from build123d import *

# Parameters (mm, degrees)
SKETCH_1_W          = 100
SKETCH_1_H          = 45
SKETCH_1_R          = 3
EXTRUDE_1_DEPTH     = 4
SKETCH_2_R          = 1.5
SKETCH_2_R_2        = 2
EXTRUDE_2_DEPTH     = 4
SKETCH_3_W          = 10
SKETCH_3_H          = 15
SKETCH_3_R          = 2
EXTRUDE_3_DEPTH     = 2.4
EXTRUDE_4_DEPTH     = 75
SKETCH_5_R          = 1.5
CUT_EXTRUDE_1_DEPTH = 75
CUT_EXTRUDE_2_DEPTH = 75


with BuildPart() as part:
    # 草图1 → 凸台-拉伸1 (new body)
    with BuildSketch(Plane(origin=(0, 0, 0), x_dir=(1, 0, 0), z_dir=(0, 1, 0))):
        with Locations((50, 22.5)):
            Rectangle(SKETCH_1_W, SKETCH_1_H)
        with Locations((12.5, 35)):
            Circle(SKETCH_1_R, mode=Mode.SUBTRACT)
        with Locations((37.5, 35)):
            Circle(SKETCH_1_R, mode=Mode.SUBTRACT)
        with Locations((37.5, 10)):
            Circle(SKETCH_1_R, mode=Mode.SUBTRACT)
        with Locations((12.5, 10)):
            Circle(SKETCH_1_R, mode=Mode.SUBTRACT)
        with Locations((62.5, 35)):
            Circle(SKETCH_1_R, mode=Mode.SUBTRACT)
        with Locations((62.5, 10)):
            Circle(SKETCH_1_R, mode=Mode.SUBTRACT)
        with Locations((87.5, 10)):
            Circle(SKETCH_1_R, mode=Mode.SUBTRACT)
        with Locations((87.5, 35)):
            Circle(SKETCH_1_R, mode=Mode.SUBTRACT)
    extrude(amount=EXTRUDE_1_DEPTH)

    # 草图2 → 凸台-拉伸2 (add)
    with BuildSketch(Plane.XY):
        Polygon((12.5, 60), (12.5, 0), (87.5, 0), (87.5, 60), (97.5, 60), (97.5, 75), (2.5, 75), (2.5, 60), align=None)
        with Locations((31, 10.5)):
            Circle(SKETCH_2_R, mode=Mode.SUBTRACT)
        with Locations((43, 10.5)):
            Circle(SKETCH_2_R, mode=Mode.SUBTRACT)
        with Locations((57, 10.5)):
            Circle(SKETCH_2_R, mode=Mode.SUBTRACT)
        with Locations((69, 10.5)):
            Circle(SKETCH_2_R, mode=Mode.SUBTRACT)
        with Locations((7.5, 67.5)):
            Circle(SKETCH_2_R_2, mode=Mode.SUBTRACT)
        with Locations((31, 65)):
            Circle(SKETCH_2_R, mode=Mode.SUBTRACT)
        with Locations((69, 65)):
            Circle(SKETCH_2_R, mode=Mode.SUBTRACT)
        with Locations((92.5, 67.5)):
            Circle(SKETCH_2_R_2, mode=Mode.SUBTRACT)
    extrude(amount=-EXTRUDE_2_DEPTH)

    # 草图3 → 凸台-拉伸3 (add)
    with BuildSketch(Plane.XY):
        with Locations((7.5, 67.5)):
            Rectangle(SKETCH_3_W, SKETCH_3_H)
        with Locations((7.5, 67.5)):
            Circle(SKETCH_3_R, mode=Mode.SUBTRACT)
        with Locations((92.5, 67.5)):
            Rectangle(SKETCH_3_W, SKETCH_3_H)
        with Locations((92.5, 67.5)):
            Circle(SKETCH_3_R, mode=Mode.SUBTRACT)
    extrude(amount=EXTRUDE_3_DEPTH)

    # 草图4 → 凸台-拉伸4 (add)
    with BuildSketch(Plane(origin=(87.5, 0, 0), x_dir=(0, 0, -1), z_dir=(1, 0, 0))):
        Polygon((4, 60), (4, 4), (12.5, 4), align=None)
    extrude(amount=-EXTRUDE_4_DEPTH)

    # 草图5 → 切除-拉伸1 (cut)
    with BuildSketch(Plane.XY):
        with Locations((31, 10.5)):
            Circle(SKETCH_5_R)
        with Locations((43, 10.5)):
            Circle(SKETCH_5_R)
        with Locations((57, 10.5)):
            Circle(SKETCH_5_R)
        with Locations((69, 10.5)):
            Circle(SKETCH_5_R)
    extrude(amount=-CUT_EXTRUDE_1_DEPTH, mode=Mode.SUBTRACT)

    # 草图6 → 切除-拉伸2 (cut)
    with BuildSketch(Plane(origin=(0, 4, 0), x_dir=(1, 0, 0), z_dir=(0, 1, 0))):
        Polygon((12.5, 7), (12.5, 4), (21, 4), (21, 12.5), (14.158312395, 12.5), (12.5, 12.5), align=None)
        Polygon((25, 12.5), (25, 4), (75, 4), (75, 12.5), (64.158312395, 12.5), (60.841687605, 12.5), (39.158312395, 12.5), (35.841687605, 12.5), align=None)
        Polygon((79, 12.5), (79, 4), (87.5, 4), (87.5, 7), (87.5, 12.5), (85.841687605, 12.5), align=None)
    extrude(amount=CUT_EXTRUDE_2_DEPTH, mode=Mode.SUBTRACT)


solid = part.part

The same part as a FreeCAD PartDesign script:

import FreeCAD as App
import Part
import Sketcher

doc = App.newDocument("Part")
body = doc.addObject("PartDesign::Body", "Body")

sketch1 = body.newObject("Sketcher::SketchObject", "Sketch")
sketch1.AttachmentSupport = (doc.getObject("XZ_Plane"), [""])
sketch1.MapMode = "FlatFace"
sketch1.addGeometry(Part.LineSegment(App.Vector(0, -45, 0), App.Vector(0, 0, 0)), False)
sketch1.addGeometry(Part.LineSegment(App.Vector(0, 0, 0), App.Vector(100, 0, 0)), False)
sketch1.addGeometry(Part.LineSegment(App.Vector(100, 0, 0), App.Vector(100, -45, 0)), False)
sketch1.addGeometry(Part.LineSegment(App.Vector(100, -45, 0), App.Vector(0, -45, 0)), False)
sketch1.addGeometry(Part.Circle(App.Vector(12.5, -10, 0), App.Vector(0, 0, 1), 3), False)
sketch1.addGeometry(Part.Circle(App.Vector(37.5, -10, 0), App.Vector(0, 0, 1), 3), False)
sketch1.addGeometry(Part.Circle(App.Vector(62.5, -10, 0), App.Vector(0, 0, 1), 3), False)
sketch1.addGeometry(Part.Circle(App.Vector(87.5, -10, 0), App.Vector(0, 0, 1), 3), False)
sketch1.addGeometry(Part.Circle(App.Vector(12.5, -35, 0), App.Vector(0, 0, 1), 3), False)
sketch1.addGeometry(Part.Circle(App.Vector(37.5, -35, 0), App.Vector(0, 0, 1), 3), False)
sketch1.addGeometry(Part.Circle(App.Vector(62.5, -35, 0), App.Vector(0, 0, 1), 3), False)
sketch1.addGeometry(Part.Circle(App.Vector(87.5, -35, 0), App.Vector(0, 0, 1), 3), False)
sketch1.addConstraint(Sketcher.Constraint("Coincident", 0, 2, 1, 1))
sketch1.addConstraint(Sketcher.Constraint("Coincident", 1, 2, 2, 1))
sketch1.addConstraint(Sketcher.Constraint("Coincident", 2, 2, 3, 1))
sketch1.addConstraint(Sketcher.Constraint("Coincident", 3, 2, 0, 1))
sketch1.addConstraint(Sketcher.Constraint("Vertical", 0))
sketch1.addConstraint(Sketcher.Constraint("Horizontal", 1))
sketch1.addConstraint(Sketcher.Constraint("Vertical", 2))
sketch1.addConstraint(Sketcher.Constraint("Horizontal", 3))
sketch1.addConstraint(Sketcher.Constraint("Coincident", 0, 2, -1, 1))
sketch1.addConstraint(Sketcher.Constraint("Equal", 4, 5))
sketch1.addConstraint(Sketcher.Constraint("Equal", 5, 6))
sketch1.addConstraint(Sketcher.Constraint("Equal", 6, 7))
sketch1.addConstraint(Sketcher.Constraint("Equal", 7, 8))
sketch1.addConstraint(Sketcher.Constraint("Equal", 8, 9))
sketch1.addConstraint(Sketcher.Constraint("Equal", 9, 10))
sketch1.addConstraint(Sketcher.Constraint("Equal", 10, 11))
sketch1.addConstraint(Sketcher.Constraint("Horizontal", 4, 3, 5, 3))
sketch1.addConstraint(Sketcher.Constraint("Horizontal", 5, 3, 6, 3))
sketch1.addConstraint(Sketcher.Constraint("Horizontal", 6, 3, 7, 3))
sketch1.addConstraint(Sketcher.Constraint("Horizontal", 8, 3, 9, 3))
sketch1.addConstraint(Sketcher.Constraint("Horizontal", 9, 3, 10, 3))
sketch1.addConstraint(Sketcher.Constraint("Horizontal", 10, 3, 11, 3))
sketch1.addConstraint(Sketcher.Constraint("Vertical", 4, 3, 8, 3))
sketch1.addConstraint(Sketcher.Constraint("Vertical", 5, 3, 9, 3))
sketch1.addConstraint(Sketcher.Constraint("Vertical", 6, 3, 10, 3))
sketch1.addConstraint(Sketcher.Constraint("Vertical", 7, 3, 11, 3))
sketch1.addConstraint(Sketcher.Constraint("Diameter", 4, 6.0))
sketch1.addConstraint(Sketcher.Constraint("DistanceX", 1, 1, 1, 2, 100.0))
sketch1.addConstraint(Sketcher.Constraint("DistanceY", 0, 1, 0, 2, 45.0))
sketch1.addConstraint(Sketcher.Constraint("DistanceY", 4, 3, -1, 1, 10.0))
sketch1.addConstraint(Sketcher.Constraint("DistanceY", 8, 3, -1, 1, 35.0))
sketch1.addConstraint(Sketcher.Constraint("DistanceX", 4, 3, 5, 3, 25.0))
sketch1.addConstraint(Sketcher.Constraint("DistanceX", 5, 3, 6, 3, 25.0))
sketch1.addConstraint(Sketcher.Constraint("DistanceX", 6, 3, 7, 3, 25.0))
sketch1.addConstraint(Sketcher.Constraint("DistanceX", -1, 1, 4, 3, 12.5))
pad1 = body.newObject("PartDesign::Pad", "Pad")
pad1.Profile = sketch1
pad1.Length = 4
pad1.Reversed = True

sketch2 = body.newObject("Sketcher::SketchObject", "Sketch001")
sketch2.AttachmentSupport = (doc.getObject("XY_Plane"), [""])
sketch2.MapMode = "FlatFace"
sketch2.addGeometry(Part.LineSegment(App.Vector(12.5, 60, 0), App.Vector(12.5, 0, 0)), False)
sketch2.addGeometry(Part.LineSegment(App.Vector(12.5, 0, 0), App.Vector(87.5, 0, 0)), False)
sketch2.addGeometry(Part.LineSegment(App.Vector(87.5, 0, 0), App.Vector(87.5, 60, 0)), False)
sketch2.addGeometry(Part.LineSegment(App.Vector(87.5, 60, 0), App.Vector(97.5, 60, 0)), False)
sketch2.addGeometry(Part.LineSegment(App.Vector(97.5, 60, 0), App.Vector(97.5, 75, 0)), False)
sketch2.addGeometry(Part.LineSegment(App.Vector(97.5, 75, 0), App.Vector(2.5, 75, 0)), False)
sketch2.addGeometry(Part.LineSegment(App.Vector(2.5, 75, 0), App.Vector(2.5, 60, 0)), False)
sketch2.addGeometry(Part.LineSegment(App.Vector(2.5, 60, 0), App.Vector(12.5, 60, 0)), False)
sketch2.addGeometry(Part.Circle(App.Vector(31, 10.5, 0), App.Vector(0, 0, 1), 1.5), False)
sketch2.addGeometry(Part.Circle(App.Vector(43, 10.5, 0), App.Vector(0, 0, 1), 1.5), False)
sketch2.addGeometry(Part.Circle(App.Vector(57, 10.5, 0), App.Vector(0, 0, 1), 1.5), False)
sketch2.addGeometry(Part.Circle(App.Vector(69, 10.5, 0), App.Vector(0, 0, 1), 1.5), False)
sketch2.addGeometry(Part.Circle(App.Vector(7.5, 67.5, 0), App.Vector(0, 0, 1), 2), False)
sketch2.addGeometry(Part.Circle(App.Vector(31, 65, 0), App.Vector(0, 0, 1), 1.5), False)
sketch2.addGeometry(Part.Circle(App.Vector(69, 65, 0), App.Vector(0, 0, 1), 1.5), False)
sketch2.addGeometry(Part.Circle(App.Vector(92.5, 67.5, 0), App.Vector(0, 0, 1), 2), False)
sketch2.addConstraint(Sketcher.Constraint("Coincident", 0, 2, 1, 1))
sketch2.addConstraint(Sketcher.Constraint("Coincident", 1, 2, 2, 1))
sketch2.addConstraint(Sketcher.Constraint("Coincident", 2, 2, 3, 1))
sketch2.addConstraint(Sketcher.Constraint("Coincident", 3, 2, 4, 1))
sketch2.addConstraint(Sketcher.Constraint("Coincident", 4, 2, 5, 1))
sketch2.addConstraint(Sketcher.Constraint("Coincident", 5, 2, 6, 1))
sketch2.addConstraint(Sketcher.Constraint("Coincident", 6, 2, 7, 1))
sketch2.addConstraint(Sketcher.Constraint("Coincident", 7, 2, 0, 1))
sketch2.addConstraint(Sketcher.Constraint("Vertical", 0))
sketch2.addConstraint(Sketcher.Constraint("Horizontal", 1))
sketch2.addConstraint(Sketcher.Constraint("Vertical", 2))
sketch2.addConstraint(Sketcher.Constraint("Horizontal", 3))
sketch2.addConstraint(Sketcher.Constraint("Vertical", 4))
sketch2.addConstraint(Sketcher.Constraint("Horizontal", 5))
sketch2.addConstraint(Sketcher.Constraint("Vertical", 6))
sketch2.addConstraint(Sketcher.Constraint("Horizontal", 7))
sketch2.addConstraint(Sketcher.Constraint("Equal", 8, 9))
sketch2.addConstraint(Sketcher.Constraint("Equal", 9, 10))
sketch2.addConstraint(Sketcher.Constraint("Equal", 10, 11))
sketch2.addConstraint(Sketcher.Constraint("Equal", 11, 13))
sketch2.addConstraint(Sketcher.Constraint("Equal", 13, 14))
sketch2.addConstraint(Sketcher.Constraint("Equal", 12, 15))
sketch2.addConstraint(Sketcher.Constraint("PointOnObject", 0, 2, -1))
sketch2.addConstraint(Sketcher.Constraint("Horizontal", 8, 3, 9, 3))
sketch2.addConstraint(Sketcher.Constraint("Horizontal", 9, 3, 10, 3))
sketch2.addConstraint(Sketcher.Constraint("Horizontal", 10, 3, 11, 3))
sketch2.addConstraint(Sketcher.Constraint("Horizontal", 13, 3, 14, 3))
sketch2.addConstraint(Sketcher.Constraint("Horizontal", 12, 3, 15, 3))
sketch2.addConstraint(Sketcher.Constraint("Horizontal", 3, 2, 6, 2))
sketch2.addConstraint(Sketcher.Constraint("Vertical", 8, 3, 13, 3))
sketch2.addConstraint(Sketcher.Constraint("Vertical", 11, 3, 14, 3))
sketch2.addConstraint(Sketcher.Constraint("Equal", 3, 7))
sketch2.addConstraint(Sketcher.Constraint("Diameter", 8, 3.0))
sketch2.addConstraint(Sketcher.Constraint("Diameter", 12, 4.0))
sketch2.addConstraint(Sketcher.Constraint("DistanceX", 1, 1, 1, 2, 75.0))
sketch2.addConstraint(Sketcher.Constraint("DistanceX", 3, 1, 3, 2, 10.0))
sketch2.addConstraint(Sketcher.Constraint("DistanceY", 0, 2, 0, 1, 60.0))
sketch2.addConstraint(Sketcher.Constraint("DistanceY", 4, 1, 4, 2, 15.0))
sketch2.addConstraint(Sketcher.Constraint("DistanceX", -1, 1, 8, 3, 31.0))
sketch2.addConstraint(Sketcher.Constraint("DistanceX", -1, 1, 9, 3, 43.0))
sketch2.addConstraint(Sketcher.Constraint("DistanceX", -1, 1, 10, 3, 57.0))
sketch2.addConstraint(Sketcher.Constraint("DistanceX", -1, 1, 11, 3, 69.0))
sketch2.addConstraint(Sketcher.Constraint("DistanceY", -1, 1, 13, 3, 65.0))
sketch2.addConstraint(Sketcher.Constraint("DistanceY", 8, 3, 12, 3, 57.0))
sketch2.addConstraint(Sketcher.Constraint("DistanceX", 2, 2, 15, 3, 5.0))
sketch2.addConstraint(Sketcher.Constraint("DistanceX", 5, 2, 12, 3, 5.0))
sketch2.addConstraint(Sketcher.Constraint("DistanceY", -1, 1, 8, 3, 10.5))
sketch2.addConstraint(Sketcher.Constraint("DistanceX", -1, 1, 12, 3, 7.5))
pad2 = body.newObject("PartDesign::Pad", "Pad001")
pad2.Profile = sketch2
pad2.Length = 4
pad2.Reversed = True

sketch3 = body.newObject("Sketcher::SketchObject", "Sketch002")
sketch3.AttachmentSupport = (doc.getObject("XY_Plane"), [""])
sketch3.MapMode = "FlatFace"
sketch3.addGeometry(Part.LineSegment(App.Vector(2.5, 75, 0), App.Vector(2.5, 60, 0)), False)
sketch3.addGeometry(Part.LineSegment(App.Vector(2.5, 60, 0), App.Vector(12.5, 60, 0)), False)
sketch3.addGeometry(Part.LineSegment(App.Vector(12.5, 60, 0), App.Vector(12.5, 75, 0)), False)
sketch3.addGeometry(Part.LineSegment(App.Vector(12.5, 75, 0), App.Vector(2.5, 75, 0)), False)
sketch3.addGeometry(Part.Circle(App.Vector(7.5, 67.5, 0), App.Vector(0, 0, 1), 2), False)
sketch3.addGeometry(Part.LineSegment(App.Vector(87.5, 75, 0), App.Vector(87.5, 60, 0)), False)
sketch3.addGeometry(Part.LineSegment(App.Vector(87.5, 60, 0), App.Vector(97.5, 60, 0)), False)
sketch3.addGeometry(Part.LineSegment(App.Vector(97.5, 60, 0), App.Vector(97.5, 75, 0)), False)
sketch3.addGeometry(Part.LineSegment(App.Vector(97.5, 75, 0), App.Vector(87.5, 75, 0)), False)
sketch3.addGeometry(Part.Circle(App.Vector(92.5, 67.5, 0), App.Vector(0, 0, 1), 2), False)
sketch3.addConstraint(Sketcher.Constraint("Coincident", 0, 2, 1, 1))
sketch3.addConstraint(Sketcher.Constraint("Coincident", 1, 2, 2, 1))
sketch3.addConstraint(Sketcher.Constraint("Coincident", 2, 2, 3, 1))
sketch3.addConstraint(Sketcher.Constraint("Coincident", 3, 2, 0, 1))
sketch3.addConstraint(Sketcher.Constraint("Coincident", 5, 2, 6, 1))
sketch3.addConstraint(Sketcher.Constraint("Coincident", 6, 2, 7, 1))
sketch3.addConstraint(Sketcher.Constraint("Coincident", 7, 2, 8, 1))
sketch3.addConstraint(Sketcher.Constraint("Coincident", 8, 2, 5, 1))
sketch3.addConstraint(Sketcher.Constraint("Vertical", 0))
sketch3.addConstraint(Sketcher.Constraint("Horizontal", 1))
sketch3.addConstraint(Sketcher.Constraint("Vertical", 2))
sketch3.addConstraint(Sketcher.Constraint("Horizontal", 3))
sketch3.addConstraint(Sketcher.Constraint("Vertical", 5))
sketch3.addConstraint(Sketcher.Constraint("Horizontal", 6))
sketch3.addConstraint(Sketcher.Constraint("Vertical", 7))
sketch3.addConstraint(Sketcher.Constraint("Horizontal", 8))
sketch3.addConstraint(Sketcher.Constraint("Equal", 4, 9))
sketch3.addConstraint(Sketcher.Constraint("Horizontal", 4, 3, 9, 3))
sketch3.addConstraint(Sketcher.Constraint("Horizontal", 1, 2, 5, 2))
sketch3.addConstraint(Sketcher.Constraint("Horizontal", 3, 2, 7, 2))
sketch3.addConstraint(Sketcher.Constraint("Equal", 3, 6))
sketch3.addConstraint(Sketcher.Constraint("Diameter", 4, 4.0))
sketch3.addConstraint(Sketcher.Constraint("DistanceX", 1, 1, 1, 2, 10.0))
sketch3.addConstraint(Sketcher.Constraint("DistanceY", 0, 2, 0, 1, 15.0))
sketch3.addConstraint(Sketcher.Constraint("DistanceY", -1, 1, 0, 2, 60.0))
sketch3.addConstraint(Sketcher.Constraint("DistanceX", 4, 3, 9, 3, 85.0))
sketch3.addConstraint(Sketcher.Constraint("DistanceX", 0, 2, 4, 3, 5.0))
sketch3.addConstraint(Sketcher.Constraint("DistanceX", 5, 2, 9, 3, 5.0))
sketch3.addConstraint(Sketcher.Constraint("DistanceX", -1, 1, 4, 3, 7.5))
sketch3.addConstraint(Sketcher.Constraint("DistanceY", -1, 1, 4, 3, 67.5))
pad3 = body.newObject("PartDesign::Pad", "Pad002")
pad3.Profile = sketch3
pad3.Length = 2.4

sketch4 = body.newObject("Sketcher::SketchObject", "Sketch003")
sketch4.AttachmentSupport = (doc.getObject("YZ_Plane"), [""])
sketch4.MapMode = "FlatFace"
sketch4.AttachmentOffset = App.Placement(App.Vector(0, 0, 87.5), App.Rotation())
sketch4.addGeometry(Part.LineSegment(App.Vector(60, -4, 0), App.Vector(4, -4, 0)), False)
sketch4.addGeometry(Part.LineSegment(App.Vector(4, -4, 0), App.Vector(4, -12.5, 0)), False)
sketch4.addGeometry(Part.LineSegment(App.Vector(4, -12.5, 0), App.Vector(60, -4, 0)), False)
sketch4.addConstraint(Sketcher.Constraint("Coincident", 0, 2, 1, 1))
sketch4.addConstraint(Sketcher.Constraint("Coincident", 1, 2, 2, 1))
sketch4.addConstraint(Sketcher.Constraint("Coincident", 2, 2, 0, 1))
sketch4.addConstraint(Sketcher.Constraint("Horizontal", 0))
sketch4.addConstraint(Sketcher.Constraint("Vertical", 1))
sketch4.addConstraint(Sketcher.Constraint("DistanceX", 0, 2, 0, 1, 56.0))
sketch4.addConstraint(Sketcher.Constraint("DistanceY", 1, 2, 1, 1, 8.5))
sketch4.addConstraint(Sketcher.Constraint("DistanceX", -1, 1, 0, 2, 4.0))
sketch4.addConstraint(Sketcher.Constraint("DistanceY", 0, 2, -1, 1, 4.0))
pad4 = body.newObject("PartDesign::Pad", "Pad003")
pad4.Profile = sketch4
pad4.Length = 75
pad4.Reversed = True

sketch5 = body.newObject("Sketcher::SketchObject", "Sketch004")
sketch5.AttachmentSupport = (doc.getObject("XY_Plane"), [""])
sketch5.MapMode = "FlatFace"
sketch5.addGeometry(Part.Circle(App.Vector(31, 10.5, 0), App.Vector(0, 0, 1), 1.5), False)
sketch5.addGeometry(Part.Circle(App.Vector(43, 10.5, 0), App.Vector(0, 0, 1), 1.5), False)
sketch5.addGeometry(Part.Circle(App.Vector(57, 10.5, 0), App.Vector(0, 0, 1), 1.5), False)
sketch5.addGeometry(Part.Circle(App.Vector(69, 10.5, 0), App.Vector(0, 0, 1), 1.5), False)
sketch5.addConstraint(Sketcher.Constraint("Equal", 0, 1))
sketch5.addConstraint(Sketcher.Constraint("Equal", 1, 2))
sketch5.addConstraint(Sketcher.Constraint("Equal", 2, 3))
sketch5.addConstraint(Sketcher.Constraint("Horizontal", 0, 3, 1, 3))
sketch5.addConstraint(Sketcher.Constraint("Horizontal", 1, 3, 2, 3))
sketch5.addConstraint(Sketcher.Constraint("Horizontal", 2, 3, 3, 3))
sketch5.addConstraint(Sketcher.Constraint("Diameter", 0, 3.0))
sketch5.addConstraint(Sketcher.Constraint("DistanceX", -1, 1, 0, 3, 31.0))
sketch5.addConstraint(Sketcher.Constraint("DistanceX", -1, 1, 1, 3, 43.0))
sketch5.addConstraint(Sketcher.Constraint("DistanceX", -1, 1, 2, 3, 57.0))
sketch5.addConstraint(Sketcher.Constraint("DistanceX", -1, 1, 3, 3, 69.0))
sketch5.addConstraint(Sketcher.Constraint("DistanceY", -1, 1, 0, 3, 10.5))
pocket1 = body.newObject("PartDesign::Pocket", "Pocket")
pocket1.Profile = sketch5
pocket1.Length = 75

sketch6 = body.newObject("Sketcher::SketchObject", "Sketch005")
sketch6.AttachmentSupport = (doc.getObject("XZ_Plane"), [""])
sketch6.MapMode = "FlatFace"
sketch6.AttachmentOffset = App.Placement(App.Vector(0, 0, -4), App.Rotation())
sketch6.addGeometry(Part.LineSegment(App.Vector(12.5, -4, 0), App.Vector(21, -4, 0)), False)
sketch6.addGeometry(Part.LineSegment(App.Vector(21, -4, 0), App.Vector(21, -12.5, 0)), False)
sketch6.addGeometry(Part.LineSegment(App.Vector(21, -12.5, 0), App.Vector(12.5, -12.5, 0)), False)
sketch6.addGeometry(Part.LineSegment(App.Vector(12.5, -12.5, 0), App.Vector(12.5, -4, 0)), False)
sketch6.addGeometry(Part.LineSegment(App.Vector(25, -12.5, 0), App.Vector(25, -4, 0)), False)
sketch6.addGeometry(Part.LineSegment(App.Vector(25, -4, 0), App.Vector(75, -4, 0)), False)
sketch6.addGeometry(Part.LineSegment(App.Vector(75, -4, 0), App.Vector(75, -12.5, 0)), False)
sketch6.addGeometry(Part.LineSegment(App.Vector(75, -12.5, 0), App.Vector(25, -12.5, 0)), False)
sketch6.addGeometry(Part.LineSegment(App.Vector(79, -12.5, 0), App.Vector(79, -4, 0)), False)
sketch6.addGeometry(Part.LineSegment(App.Vector(79, -4, 0), App.Vector(87.5, -4, 0)), False)
sketch6.addGeometry(Part.LineSegment(App.Vector(87.5, -4, 0), App.Vector(87.5, -12.5, 0)), False)
sketch6.addGeometry(Part.LineSegment(App.Vector(87.5, -12.5, 0), App.Vector(79, -12.5, 0)), False)
sketch6.addConstraint(Sketcher.Constraint("Coincident", 0, 2, 1, 1))
sketch6.addConstraint(Sketcher.Constraint("Coincident", 1, 2, 2, 1))
sketch6.addConstraint(Sketcher.Constraint("Coincident", 2, 2, 3, 1))
sketch6.addConstraint(Sketcher.Constraint("Coincident", 3, 2, 0, 1))
sketch6.addConstraint(Sketcher.Constraint("Coincident", 4, 2, 5, 1))
sketch6.addConstraint(Sketcher.Constraint("Coincident", 5, 2, 6, 1))
sketch6.addConstraint(Sketcher.Constraint("Coincident", 6, 2, 7, 1))
sketch6.addConstraint(Sketcher.Constraint("Coincident", 7, 2, 4, 1))
sketch6.addConstraint(Sketcher.Constraint("Coincident", 8, 2, 9, 1))
sketch6.addConstraint(Sketcher.Constraint("Coincident", 9, 2, 10, 1))
sketch6.addConstraint(Sketcher.Constraint("Coincident", 10, 2, 11, 1))
sketch6.addConstraint(Sketcher.Constraint("Coincident", 11, 2, 8, 1))
sketch6.addConstraint(Sketcher.Constraint("Horizontal", 0))
sketch6.addConstraint(Sketcher.Constraint("Vertical", 1))
sketch6.addConstraint(Sketcher.Constraint("Horizontal", 2))
sketch6.addConstraint(Sketcher.Constraint("Vertical", 3))
sketch6.addConstraint(Sketcher.Constraint("Vertical", 4))
sketch6.addConstraint(Sketcher.Constraint("Horizontal", 5))
sketch6.addConstraint(Sketcher.Constraint("Vertical", 6))
sketch6.addConstraint(Sketcher.Constraint("Horizontal", 7))
sketch6.addConstraint(Sketcher.Constraint("Vertical", 8))
sketch6.addConstraint(Sketcher.Constraint("Horizontal", 9))
sketch6.addConstraint(Sketcher.Constraint("Vertical", 10))
sketch6.addConstraint(Sketcher.Constraint("Horizontal", 11))
sketch6.addConstraint(Sketcher.Constraint("Horizontal", 3, 2, 4, 2))
sketch6.addConstraint(Sketcher.Constraint("Horizontal", 2, 2, 6, 2))
sketch6.addConstraint(Sketcher.Constraint("Horizontal", 5, 2, 8, 2))
sketch6.addConstraint(Sketcher.Constraint("Horizontal", 7, 2, 10, 2))
sketch6.addConstraint(Sketcher.Constraint("Equal", 2, 9))
sketch6.addConstraint(Sketcher.Constraint("Equal", 11, 1))
sketch6.addConstraint(Sketcher.Constraint("DistanceX", 5, 1, 5, 2, 50.0))
sketch6.addConstraint(Sketcher.Constraint("DistanceX", 0, 1, 0, 2, 8.5))
sketch6.addConstraint(Sketcher.Constraint("DistanceX", -1, 1, 0, 2, 21.0))
sketch6.addConstraint(Sketcher.Constraint("DistanceY", 0, 2, -1, 1, 4.0))
sketch6.addConstraint(Sketcher.Constraint("DistanceX", -1, 1, 4, 2, 25.0))
sketch6.addConstraint(Sketcher.Constraint("DistanceX", -1, 1, 8, 2, 79.0))
pocket2 = body.newObject("PartDesign::Pocket", "Pocket001")
pocket2.Profile = sketch6
pocket2.Length = 75

doc.recompute()
